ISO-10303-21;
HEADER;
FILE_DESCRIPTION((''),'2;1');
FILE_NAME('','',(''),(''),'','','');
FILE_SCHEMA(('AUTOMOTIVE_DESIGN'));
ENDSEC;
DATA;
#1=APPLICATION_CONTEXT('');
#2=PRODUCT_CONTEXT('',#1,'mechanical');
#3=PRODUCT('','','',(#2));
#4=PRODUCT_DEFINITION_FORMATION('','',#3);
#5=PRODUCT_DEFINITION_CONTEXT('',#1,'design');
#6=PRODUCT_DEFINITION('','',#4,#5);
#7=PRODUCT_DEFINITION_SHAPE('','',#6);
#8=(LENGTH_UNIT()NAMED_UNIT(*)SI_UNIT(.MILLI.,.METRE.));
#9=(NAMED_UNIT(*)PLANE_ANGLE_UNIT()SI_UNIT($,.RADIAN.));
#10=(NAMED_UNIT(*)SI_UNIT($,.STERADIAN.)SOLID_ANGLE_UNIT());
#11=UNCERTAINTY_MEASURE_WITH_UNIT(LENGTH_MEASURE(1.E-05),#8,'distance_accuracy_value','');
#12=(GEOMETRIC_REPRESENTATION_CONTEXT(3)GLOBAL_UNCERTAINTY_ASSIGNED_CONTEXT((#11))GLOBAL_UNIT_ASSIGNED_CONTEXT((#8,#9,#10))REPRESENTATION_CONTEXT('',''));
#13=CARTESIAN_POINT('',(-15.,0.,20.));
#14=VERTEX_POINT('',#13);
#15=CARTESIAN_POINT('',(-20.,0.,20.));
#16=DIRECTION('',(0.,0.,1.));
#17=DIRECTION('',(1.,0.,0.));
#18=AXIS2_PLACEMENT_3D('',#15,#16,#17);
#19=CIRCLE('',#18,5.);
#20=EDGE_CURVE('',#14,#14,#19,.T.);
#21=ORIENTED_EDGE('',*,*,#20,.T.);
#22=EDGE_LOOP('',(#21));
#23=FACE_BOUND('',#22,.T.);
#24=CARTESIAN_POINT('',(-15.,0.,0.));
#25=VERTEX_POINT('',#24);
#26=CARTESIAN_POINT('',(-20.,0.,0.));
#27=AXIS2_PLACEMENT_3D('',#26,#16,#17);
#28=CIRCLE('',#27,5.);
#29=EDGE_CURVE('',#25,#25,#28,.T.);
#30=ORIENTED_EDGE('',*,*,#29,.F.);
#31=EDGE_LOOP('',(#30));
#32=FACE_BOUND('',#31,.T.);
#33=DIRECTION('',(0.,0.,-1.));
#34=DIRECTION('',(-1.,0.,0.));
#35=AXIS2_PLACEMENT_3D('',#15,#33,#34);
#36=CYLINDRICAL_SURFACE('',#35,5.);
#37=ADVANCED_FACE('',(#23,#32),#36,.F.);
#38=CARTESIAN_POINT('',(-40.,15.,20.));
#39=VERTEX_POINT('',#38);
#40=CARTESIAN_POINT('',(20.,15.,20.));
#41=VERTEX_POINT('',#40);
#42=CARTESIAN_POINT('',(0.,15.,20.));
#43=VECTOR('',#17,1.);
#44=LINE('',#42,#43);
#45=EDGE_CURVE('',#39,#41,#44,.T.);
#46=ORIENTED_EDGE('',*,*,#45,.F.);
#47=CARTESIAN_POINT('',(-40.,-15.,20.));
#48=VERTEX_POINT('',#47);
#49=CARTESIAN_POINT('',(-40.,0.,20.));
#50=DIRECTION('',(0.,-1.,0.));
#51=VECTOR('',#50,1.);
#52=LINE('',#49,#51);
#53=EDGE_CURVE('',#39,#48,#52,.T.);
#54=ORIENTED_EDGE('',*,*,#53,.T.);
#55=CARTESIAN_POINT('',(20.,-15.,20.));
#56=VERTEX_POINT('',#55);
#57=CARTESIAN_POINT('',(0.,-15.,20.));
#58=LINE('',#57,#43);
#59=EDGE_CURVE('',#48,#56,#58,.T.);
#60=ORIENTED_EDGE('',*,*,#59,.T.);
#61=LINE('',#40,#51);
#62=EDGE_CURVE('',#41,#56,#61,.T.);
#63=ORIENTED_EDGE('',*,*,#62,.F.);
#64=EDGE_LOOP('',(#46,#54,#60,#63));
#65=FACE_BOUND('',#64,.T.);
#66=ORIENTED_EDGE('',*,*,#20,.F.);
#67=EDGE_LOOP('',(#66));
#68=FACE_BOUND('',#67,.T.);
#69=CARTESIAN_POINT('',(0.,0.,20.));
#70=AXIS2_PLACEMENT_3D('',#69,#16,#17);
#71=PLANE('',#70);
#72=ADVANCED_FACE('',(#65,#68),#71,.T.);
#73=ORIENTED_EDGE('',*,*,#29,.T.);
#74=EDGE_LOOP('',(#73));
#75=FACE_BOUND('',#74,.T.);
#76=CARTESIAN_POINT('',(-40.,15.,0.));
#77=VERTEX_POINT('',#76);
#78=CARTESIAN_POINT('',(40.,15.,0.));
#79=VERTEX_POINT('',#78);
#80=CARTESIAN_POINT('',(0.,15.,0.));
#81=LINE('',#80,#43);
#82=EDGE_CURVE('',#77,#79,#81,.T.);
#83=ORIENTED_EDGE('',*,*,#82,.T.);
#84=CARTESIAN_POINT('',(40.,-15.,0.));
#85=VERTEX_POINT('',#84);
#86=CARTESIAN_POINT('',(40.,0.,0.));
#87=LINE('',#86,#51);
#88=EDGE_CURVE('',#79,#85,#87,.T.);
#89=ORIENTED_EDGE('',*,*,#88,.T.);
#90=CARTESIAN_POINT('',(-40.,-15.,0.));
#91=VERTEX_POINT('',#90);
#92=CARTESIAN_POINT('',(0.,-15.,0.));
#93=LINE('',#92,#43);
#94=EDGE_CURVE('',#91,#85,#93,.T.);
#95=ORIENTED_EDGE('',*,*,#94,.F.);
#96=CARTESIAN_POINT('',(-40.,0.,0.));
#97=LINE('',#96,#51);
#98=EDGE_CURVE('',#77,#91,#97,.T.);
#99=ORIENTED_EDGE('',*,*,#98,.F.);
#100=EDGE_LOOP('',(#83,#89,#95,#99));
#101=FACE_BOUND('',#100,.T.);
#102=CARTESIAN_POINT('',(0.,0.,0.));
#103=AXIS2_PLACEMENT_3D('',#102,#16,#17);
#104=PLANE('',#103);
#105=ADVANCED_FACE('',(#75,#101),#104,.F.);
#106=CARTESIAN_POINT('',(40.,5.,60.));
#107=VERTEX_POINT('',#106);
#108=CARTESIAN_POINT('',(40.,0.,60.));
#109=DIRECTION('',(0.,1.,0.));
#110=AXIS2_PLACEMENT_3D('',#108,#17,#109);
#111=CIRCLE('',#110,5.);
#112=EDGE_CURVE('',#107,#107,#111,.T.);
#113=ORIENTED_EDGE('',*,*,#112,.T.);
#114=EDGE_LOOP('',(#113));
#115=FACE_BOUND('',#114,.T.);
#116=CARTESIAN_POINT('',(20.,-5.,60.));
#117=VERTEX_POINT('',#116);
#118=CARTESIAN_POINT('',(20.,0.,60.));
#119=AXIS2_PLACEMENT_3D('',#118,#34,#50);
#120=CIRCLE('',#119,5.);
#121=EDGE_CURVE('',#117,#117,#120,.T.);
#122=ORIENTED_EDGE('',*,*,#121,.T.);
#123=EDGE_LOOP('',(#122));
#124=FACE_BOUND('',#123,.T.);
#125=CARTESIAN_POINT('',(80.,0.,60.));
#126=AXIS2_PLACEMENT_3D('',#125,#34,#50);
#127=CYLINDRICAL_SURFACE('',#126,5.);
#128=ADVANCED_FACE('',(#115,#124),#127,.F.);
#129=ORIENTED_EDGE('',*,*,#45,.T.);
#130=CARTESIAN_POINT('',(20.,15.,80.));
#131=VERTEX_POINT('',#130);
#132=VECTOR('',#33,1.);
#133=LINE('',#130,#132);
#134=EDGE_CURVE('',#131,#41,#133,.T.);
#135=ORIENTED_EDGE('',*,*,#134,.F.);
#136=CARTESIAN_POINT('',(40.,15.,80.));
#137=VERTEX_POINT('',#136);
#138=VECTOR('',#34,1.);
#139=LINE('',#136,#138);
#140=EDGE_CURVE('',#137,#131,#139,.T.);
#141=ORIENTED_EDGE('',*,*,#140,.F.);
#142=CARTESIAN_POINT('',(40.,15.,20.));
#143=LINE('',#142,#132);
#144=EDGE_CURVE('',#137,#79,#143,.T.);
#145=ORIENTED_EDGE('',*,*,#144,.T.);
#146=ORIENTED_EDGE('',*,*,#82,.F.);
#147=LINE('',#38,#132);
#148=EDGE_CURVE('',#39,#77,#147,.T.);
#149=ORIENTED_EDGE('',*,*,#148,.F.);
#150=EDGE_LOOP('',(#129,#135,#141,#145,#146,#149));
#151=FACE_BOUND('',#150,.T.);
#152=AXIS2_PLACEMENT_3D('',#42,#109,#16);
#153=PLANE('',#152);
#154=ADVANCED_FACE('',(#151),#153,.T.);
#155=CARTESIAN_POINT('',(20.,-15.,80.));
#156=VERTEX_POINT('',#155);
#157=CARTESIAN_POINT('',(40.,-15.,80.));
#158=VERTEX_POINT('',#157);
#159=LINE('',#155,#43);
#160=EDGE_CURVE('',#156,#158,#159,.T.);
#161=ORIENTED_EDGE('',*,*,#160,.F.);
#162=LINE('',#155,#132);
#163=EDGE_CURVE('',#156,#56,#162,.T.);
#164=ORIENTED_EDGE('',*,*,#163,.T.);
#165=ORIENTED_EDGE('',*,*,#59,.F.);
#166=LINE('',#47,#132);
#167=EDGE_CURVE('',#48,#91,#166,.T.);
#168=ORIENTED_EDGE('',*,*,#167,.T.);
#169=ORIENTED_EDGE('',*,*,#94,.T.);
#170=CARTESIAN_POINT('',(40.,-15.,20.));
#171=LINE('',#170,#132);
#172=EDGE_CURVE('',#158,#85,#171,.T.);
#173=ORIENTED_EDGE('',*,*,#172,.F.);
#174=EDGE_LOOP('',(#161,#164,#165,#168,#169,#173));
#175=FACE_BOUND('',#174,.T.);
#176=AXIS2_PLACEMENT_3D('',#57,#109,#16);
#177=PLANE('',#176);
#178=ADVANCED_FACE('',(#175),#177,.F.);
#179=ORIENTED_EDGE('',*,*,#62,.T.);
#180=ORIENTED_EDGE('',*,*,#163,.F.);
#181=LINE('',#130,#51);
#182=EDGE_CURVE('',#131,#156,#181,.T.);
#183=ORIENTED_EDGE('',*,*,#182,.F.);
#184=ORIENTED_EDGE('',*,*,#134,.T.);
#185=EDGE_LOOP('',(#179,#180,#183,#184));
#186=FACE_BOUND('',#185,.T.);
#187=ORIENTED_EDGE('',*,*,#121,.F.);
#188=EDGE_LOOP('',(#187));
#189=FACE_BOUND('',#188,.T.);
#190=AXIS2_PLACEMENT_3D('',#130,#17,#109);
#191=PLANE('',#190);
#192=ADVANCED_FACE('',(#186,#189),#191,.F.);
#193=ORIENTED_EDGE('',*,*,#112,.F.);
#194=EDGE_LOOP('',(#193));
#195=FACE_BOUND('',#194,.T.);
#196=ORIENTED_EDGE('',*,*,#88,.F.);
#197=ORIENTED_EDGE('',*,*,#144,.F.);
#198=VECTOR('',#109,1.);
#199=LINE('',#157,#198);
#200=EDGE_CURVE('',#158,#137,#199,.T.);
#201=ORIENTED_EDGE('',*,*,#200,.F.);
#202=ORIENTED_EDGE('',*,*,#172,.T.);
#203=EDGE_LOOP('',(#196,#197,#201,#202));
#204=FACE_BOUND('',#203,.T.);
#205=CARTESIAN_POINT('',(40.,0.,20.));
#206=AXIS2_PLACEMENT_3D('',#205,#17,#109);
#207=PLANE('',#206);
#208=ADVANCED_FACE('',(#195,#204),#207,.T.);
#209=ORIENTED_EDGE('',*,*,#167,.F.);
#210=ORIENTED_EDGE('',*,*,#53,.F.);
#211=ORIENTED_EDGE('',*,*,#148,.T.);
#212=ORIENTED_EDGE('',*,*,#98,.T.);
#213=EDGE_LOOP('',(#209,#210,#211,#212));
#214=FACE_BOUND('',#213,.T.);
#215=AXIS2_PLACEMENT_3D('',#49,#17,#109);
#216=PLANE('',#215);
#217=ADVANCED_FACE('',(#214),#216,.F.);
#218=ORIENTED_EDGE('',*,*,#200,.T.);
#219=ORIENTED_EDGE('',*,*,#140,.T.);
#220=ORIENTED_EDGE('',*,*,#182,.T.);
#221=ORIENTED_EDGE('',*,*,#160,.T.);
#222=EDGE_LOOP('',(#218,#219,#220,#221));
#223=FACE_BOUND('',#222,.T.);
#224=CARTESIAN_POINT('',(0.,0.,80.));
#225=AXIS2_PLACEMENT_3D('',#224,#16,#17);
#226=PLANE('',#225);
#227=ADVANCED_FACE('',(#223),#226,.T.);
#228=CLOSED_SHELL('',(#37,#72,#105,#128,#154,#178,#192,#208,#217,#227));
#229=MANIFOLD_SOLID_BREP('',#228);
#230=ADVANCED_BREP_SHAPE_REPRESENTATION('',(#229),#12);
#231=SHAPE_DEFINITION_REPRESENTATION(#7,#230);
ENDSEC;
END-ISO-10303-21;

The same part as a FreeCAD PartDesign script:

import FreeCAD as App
import Part
import Sketcher
from FreeCAD import Vector
Q = App.Units.Quantity

doc = App.newDocument("Part")
body = doc.addObject("PartDesign::Body", "Body")

# Sketch on XY plane
sketch1 = body.newObject("Sketcher::SketchObject", "Sketch")
sketch1.AttachmentSupport = (doc.getObject("XY_Plane"), [""])
sketch1.MapMode = "FlatFace"
sketch1.addGeometry([
    Part.LineSegment(Vector(-40, 15, 0), Vector(-40, -15, 0)),  # 0
    Part.LineSegment(Vector(-40, -15, 0), Vector(40, -15, 0)),  # 1
    Part.LineSegment(Vector(40, -15, 0), Vector(40, 15, 0)),  # 2
    Part.LineSegment(Vector(40, 15, 0), Vector(-40, 15, 0)),  # 3
    Part.Circle(Vector(-20, 0, 0), Vector(0, 0, 1), 5),  # 4
], False)
sketch1.addConstraint([
    Sketcher.Constraint("Coincident", 0, 2, 1, 1),
    Sketcher.Constraint("Coincident", 1, 2, 2, 1),
    Sketcher.Constraint("Coincident", 2, 2, 3, 1),
    Sketcher.Constraint("Coincident", 3, 2, 0, 1),
    Sketcher.Constraint("Vertical", 0),
    Sketcher.Constraint("Horizontal", 1),
    Sketcher.Constraint("Vertical", 2),
    Sketcher.Constraint("Horizontal", 3),
    Sketcher.Constraint("Symmetric", 0, 2, 2, 2, -1, 1),
    Sketcher.Constraint("PointOnObject", 4, 3, -1),
    Sketcher.Constraint("Diameter", 4, Q("10 mm")),
    Sketcher.Constraint("DistanceX", 1, 1, 1, 2, Q("80 mm")),
    Sketcher.Constraint("DistanceY", 0, 2, 0, 1, Q("30 mm")),
    Sketcher.Constraint("DistanceX", 4, 3, -1, 1, Q("20 mm")),
])
pad1 = body.newObject("PartDesign::Pad", "Pad")
pad1.Profile = sketch1
pad1.Length = 20

# Sketch on XY plane
sketch2 = body.newObject("Sketcher::SketchObject", "Sketch001")
sketch2.AttachmentSupport = (doc.getObject("XY_Plane"), [""])
sketch2.MapMode = "FlatFace"
sketch2.AttachmentOffset = App.Placement(Vector(0, 0, 20), App.Rotation())
sketch2.addGeometry([
    Part.LineSegment(Vector(20, 15, 0), Vector(20, -15, 0)),
    Part.LineSegment(Vector(20, -15, 0), Vector(40, -15, 0)),
    Part.LineSegment(Vector(40, -15, 0), Vector(40, 15, 0)),
    Part.LineSegment(Vector(40, 15, 0), Vector(20, 15, 0)),
], False)
sketch2.addConstraint([
    Sketcher.Constraint("Coincident", 0, 2, 1, 1),
    Sketcher.Constraint("Coincident", 1, 2, 2, 1),
    Sketcher.Constraint("Coincident", 2, 2, 3, 1),
    Sketcher.Constraint("Coincident", 3, 2, 0, 1),
    Sketcher.Constraint("Vertical", 0),
    Sketcher.Constraint("Horizontal", 1),
    Sketcher.Constraint("Vertical", 2),
    Sketcher.Constraint("Horizontal", 3),
    Sketcher.Constraint("DistanceX", 1, 1, 1, 2, Q("20 mm")),
    Sketcher.Constraint("DistanceY", 0, 2, 0, 1, Q("30 mm")),
    Sketcher.Constraint("DistanceX", -1, 1, 0, 2, Q("20 mm")),
    Sketcher.Constraint("DistanceY", 0, 2, -1, 1, Q("15 mm")),
])
pad2 = body.newObject("PartDesign::Pad", "Pad001")
pad2.Profile = sketch2
pad2.Length = 60

# Sketch on YZ plane
sketch3 = body.newObject("Sketcher::SketchObject", "Sketch002")
sketch3.AttachmentSupport = (doc.getObject("YZ_Plane"), [""])
sketch3.MapMode = "FlatFace"
sketch3.AttachmentOffset = App.Placement(Vector(0, 0, 20), App.Rotation())
sketch3.addGeometry(Part.Circle(Vector(0, 60, 0), Vector(0, 0, 1), 5), False)
sketch3.addConstraint([
    Sketcher.Constraint("PointOnObject", 0, 3, -2),
    Sketcher.Constraint("Diameter", 0, Q("10 mm")),
    Sketcher.Constraint("DistanceY", -1, 1, 0, 3, Q("60 mm")),
])
pocket1 = body.newObject("PartDesign::Pocket", "Pocket")
pocket1.Profile = sketch3
pocket1.Length = 60
pocket1.Reversed = True

doc.recompute()
